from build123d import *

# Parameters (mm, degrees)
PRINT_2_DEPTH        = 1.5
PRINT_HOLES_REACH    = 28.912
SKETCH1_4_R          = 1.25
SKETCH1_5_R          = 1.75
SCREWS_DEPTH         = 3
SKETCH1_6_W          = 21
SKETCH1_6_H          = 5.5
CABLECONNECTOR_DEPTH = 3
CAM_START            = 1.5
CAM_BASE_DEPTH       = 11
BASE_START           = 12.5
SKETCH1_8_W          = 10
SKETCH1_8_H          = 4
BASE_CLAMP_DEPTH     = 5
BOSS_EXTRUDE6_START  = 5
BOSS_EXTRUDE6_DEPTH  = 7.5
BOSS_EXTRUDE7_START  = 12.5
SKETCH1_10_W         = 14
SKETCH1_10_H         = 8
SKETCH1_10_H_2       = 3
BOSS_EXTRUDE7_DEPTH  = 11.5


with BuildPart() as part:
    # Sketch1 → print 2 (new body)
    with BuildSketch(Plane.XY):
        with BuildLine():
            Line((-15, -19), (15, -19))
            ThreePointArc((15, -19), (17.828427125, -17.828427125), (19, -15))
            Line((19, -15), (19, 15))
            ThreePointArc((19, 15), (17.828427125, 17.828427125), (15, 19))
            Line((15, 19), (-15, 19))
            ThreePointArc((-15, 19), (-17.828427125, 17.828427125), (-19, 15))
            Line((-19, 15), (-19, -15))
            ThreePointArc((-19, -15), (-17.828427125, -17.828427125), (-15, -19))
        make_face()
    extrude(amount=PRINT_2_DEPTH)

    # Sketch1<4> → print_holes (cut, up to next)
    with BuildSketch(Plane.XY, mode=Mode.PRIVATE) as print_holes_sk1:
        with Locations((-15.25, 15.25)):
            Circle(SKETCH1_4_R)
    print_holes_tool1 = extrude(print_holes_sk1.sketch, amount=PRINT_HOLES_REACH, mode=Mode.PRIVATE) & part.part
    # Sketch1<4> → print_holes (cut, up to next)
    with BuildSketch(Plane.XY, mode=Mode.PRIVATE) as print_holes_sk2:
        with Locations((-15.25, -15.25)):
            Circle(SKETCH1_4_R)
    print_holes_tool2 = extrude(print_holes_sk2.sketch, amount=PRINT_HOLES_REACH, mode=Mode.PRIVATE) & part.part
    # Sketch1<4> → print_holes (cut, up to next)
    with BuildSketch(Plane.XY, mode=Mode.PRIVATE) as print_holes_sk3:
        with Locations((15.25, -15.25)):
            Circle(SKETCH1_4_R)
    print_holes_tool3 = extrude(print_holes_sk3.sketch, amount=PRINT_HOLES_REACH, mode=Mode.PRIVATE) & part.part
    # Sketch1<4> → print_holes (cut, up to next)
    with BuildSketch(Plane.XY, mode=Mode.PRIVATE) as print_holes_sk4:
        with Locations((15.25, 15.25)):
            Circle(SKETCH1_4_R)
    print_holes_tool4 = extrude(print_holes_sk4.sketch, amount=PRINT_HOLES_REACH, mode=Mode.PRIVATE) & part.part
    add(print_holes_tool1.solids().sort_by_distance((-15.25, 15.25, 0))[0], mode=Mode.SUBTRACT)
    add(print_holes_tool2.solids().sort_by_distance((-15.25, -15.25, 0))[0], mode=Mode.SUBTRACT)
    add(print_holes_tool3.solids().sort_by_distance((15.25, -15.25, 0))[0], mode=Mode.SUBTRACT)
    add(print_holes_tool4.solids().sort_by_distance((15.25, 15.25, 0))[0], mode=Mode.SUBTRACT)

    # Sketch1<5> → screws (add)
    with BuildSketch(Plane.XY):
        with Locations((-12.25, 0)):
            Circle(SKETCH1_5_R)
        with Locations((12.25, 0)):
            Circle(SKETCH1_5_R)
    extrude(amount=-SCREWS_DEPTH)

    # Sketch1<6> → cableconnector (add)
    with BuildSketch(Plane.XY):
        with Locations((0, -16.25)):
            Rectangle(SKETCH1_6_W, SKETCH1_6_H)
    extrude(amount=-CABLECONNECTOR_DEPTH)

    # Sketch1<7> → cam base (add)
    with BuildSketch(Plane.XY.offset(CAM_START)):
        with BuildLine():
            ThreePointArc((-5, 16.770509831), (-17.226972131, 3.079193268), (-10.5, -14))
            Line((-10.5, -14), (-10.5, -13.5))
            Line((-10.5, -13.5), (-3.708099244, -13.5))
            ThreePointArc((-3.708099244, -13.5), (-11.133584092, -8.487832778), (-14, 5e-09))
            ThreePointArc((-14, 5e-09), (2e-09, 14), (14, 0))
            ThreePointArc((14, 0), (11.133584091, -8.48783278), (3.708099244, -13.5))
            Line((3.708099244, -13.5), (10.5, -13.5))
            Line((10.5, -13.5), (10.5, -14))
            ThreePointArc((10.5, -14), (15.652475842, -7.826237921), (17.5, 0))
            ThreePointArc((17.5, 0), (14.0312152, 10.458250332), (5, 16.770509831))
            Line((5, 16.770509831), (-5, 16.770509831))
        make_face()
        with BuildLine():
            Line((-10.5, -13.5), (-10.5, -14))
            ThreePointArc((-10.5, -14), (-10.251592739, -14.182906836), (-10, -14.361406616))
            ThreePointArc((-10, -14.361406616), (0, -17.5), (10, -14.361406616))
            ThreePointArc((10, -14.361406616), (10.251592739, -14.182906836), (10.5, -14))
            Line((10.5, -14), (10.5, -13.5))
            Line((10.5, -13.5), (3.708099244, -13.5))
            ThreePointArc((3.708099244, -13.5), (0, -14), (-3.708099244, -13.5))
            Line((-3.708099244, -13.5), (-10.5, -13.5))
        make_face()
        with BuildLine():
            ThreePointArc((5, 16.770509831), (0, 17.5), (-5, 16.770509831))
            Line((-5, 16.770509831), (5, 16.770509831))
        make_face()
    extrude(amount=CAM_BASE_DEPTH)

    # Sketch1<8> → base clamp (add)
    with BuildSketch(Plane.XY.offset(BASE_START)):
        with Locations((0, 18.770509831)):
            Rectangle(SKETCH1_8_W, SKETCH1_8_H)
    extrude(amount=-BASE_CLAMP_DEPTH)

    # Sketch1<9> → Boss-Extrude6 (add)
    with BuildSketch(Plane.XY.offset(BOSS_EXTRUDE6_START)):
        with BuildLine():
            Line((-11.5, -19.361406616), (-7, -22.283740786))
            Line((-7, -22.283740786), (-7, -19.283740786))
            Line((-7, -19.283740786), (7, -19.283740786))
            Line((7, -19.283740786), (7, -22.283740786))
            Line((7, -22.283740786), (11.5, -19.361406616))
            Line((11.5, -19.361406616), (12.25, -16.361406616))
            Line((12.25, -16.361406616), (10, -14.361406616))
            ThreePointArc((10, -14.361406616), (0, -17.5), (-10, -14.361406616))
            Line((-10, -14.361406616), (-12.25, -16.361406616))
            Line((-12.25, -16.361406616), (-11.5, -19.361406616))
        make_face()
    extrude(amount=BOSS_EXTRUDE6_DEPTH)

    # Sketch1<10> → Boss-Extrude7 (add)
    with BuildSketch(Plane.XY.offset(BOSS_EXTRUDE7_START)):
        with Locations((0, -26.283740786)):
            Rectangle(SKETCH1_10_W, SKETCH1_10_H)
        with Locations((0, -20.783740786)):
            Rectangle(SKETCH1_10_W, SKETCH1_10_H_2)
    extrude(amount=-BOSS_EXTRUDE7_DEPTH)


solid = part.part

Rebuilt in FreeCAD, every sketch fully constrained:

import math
import FreeCAD as App
import Part
import Sketcher
from FreeCAD import Vector
Q = App.Units.Quantity

doc = App.newDocument("Part")
body = doc.addObject("PartDesign::Body", "Body")

sketch1 = body.newObject("Sketcher::SketchObject", "Sketch")
sketch1.AttachmentSupport = (doc.getObject("XY_Plane"), [""])
sketch1.MapMode = "FlatFace"
sketch1.addGeometry([
    Part.LineSegment(Vector(-15, -19, 0), Vector(15, -19, 0)),
    Part.ArcOfCircle(Part.Circle(Vector(15, -15, 0), Vector(0, 0, 1), 4), math.radians(-90), math.radians(0)),
    Part.LineSegment(Vector(19, -15, 0), Vector(19, 15, 0)),
    Part.ArcOfCircle(Part.Circle(Vector(15, 15, 0), Vector(0, 0, 1), 4), math.radians(0), math.radians(90)),
    Part.LineSegment(Vector(15, 19, 0), Vector(-15, 19, 0)),
    Part.ArcOfCircle(Part.Circle(Vector(-15, 15, 0), Vector(0, 0, 1), 4), math.radians(90), math.radians(180)),
    Part.LineSegment(Vector(-19, 15, 0), Vector(-19, -15, 0)),
    Part.ArcOfCircle(Part.Circle(Vector(-15, -15, 0), Vector(0, 0, 1), 4), math.radians(180), math.radians(270)),
], False)
sketch1.addConstraint([
    Sketcher.Constraint("Tangent", 0, 2, 1, 1),
    Sketcher.Constraint("Tangent", 1, 2, 2, 1),
    Sketcher.Constraint("Tangent", 2, 2, 3, 1),
    Sketcher.Constraint("Tangent", 3, 2, 4, 1),
    Sketcher.Constraint("Tangent", 4, 2, 5, 1),
    Sketcher.Constraint("Tangent", 5, 2, 6, 1),
    Sketcher.Constraint("Tangent", 6, 2, 7, 1),
    Sketcher.Constraint("Tangent", 7, 2, 0, 1),
    Sketcher.Constraint("Horizontal", 0),
    Sketcher.Constraint("Vertical", 2),
    Sketcher.Constraint("Horizontal", 4),
    Sketcher.Constraint("Vertical", 6),
    Sketcher.Constraint("Equal", 1, 3),
    Sketcher.Constraint("Equal", 3, 5),
    Sketcher.Constraint("Equal", 5, 7),
    Sketcher.Constraint("Symmetric", 1, 3, 5, 3, -1, 1),
    Sketcher.Constraint("Equal", 4, 2),
    Sketcher.Constraint("Radius", 1, Q("4 mm")),
    Sketcher.Constraint("DistanceX", 0, 1, 0, 2, Q("30 mm")),
])
pad1 = body.newObject("PartDesign::Pad", "Pad")
pad1.Profile = sketch1
pad1.Length = 1.5

sketch2 = body.newObject("Sketcher::SketchObject", "Sketch001")
sketch2.AttachmentSupport = (doc.getObject("XY_Plane"), [""])
sketch2.MapMode = "FlatFace"
sketch2.addGeometry(Part.Circle(Vector(-15.2, 15.2, 0), Vector(0, 0, 1), 1.2), False)
sketch2.addConstraint([
    Sketcher.Constraint("Diameter", 0, Q("2.5 mm")),
    Sketcher.Constraint("DistanceX", 0, 3, -1, 1, Q("15.25 mm")),
    Sketcher.Constraint("DistanceY", -1, 1, 0, 3, Q("15.25 mm")),
])
pocket1 = body.newObject("PartDesign::Pocket", "Pocket")
pocket1.Profile = sketch2
pocket1.Type = "UpToFirst"
pocket1.Reversed = True

sketch3 = body.newObject("Sketcher::SketchObject", "Sketch002")
sketch3.AttachmentSupport = (doc.getObject("XY_Plane"), [""])
sketch3.MapMode = "FlatFace"
sketch3.addGeometry(Part.Circle(Vector(-15.2, -15.2, 0), Vector(0, 0, 1), 1.2), False)
sketch3.addConstraint([
    Sketcher.Constraint("Diameter", 0, Q("2.5 mm")),
    Sketcher.Constraint("DistanceX", 0, 3, -1, 1, Q("15.25 mm")),
    Sketcher.Constraint("DistanceY", 0, 3, -1, 1, Q("15.25 mm")),
])
pocket2 = body.newObject("PartDesign::Pocket", "Pocket001")
pocket2.Profile = sketch3
pocket2.Type = "UpToFirst"
pocket2.Reversed = True

sketch4 = body.newObject("Sketcher::SketchObject", "Sketch003")
sketch4.AttachmentSupport = (doc.getObject("XY_Plane"), [""])
sketch4.MapMode = "FlatFace"
sketch4.addGeometry(Part.Circle(Vector(15.2, -15.2, 0), Vector(0, 0, 1), 1.2), False)
sketch4.addConstraint([
    Sketcher.Constraint("Diameter", 0, Q("2.5 mm")),
    Sketcher.Constraint("DistanceX", -1, 1, 0, 3, Q("15.25 mm")),
    Sketcher.Constraint("DistanceY", 0, 3, -1, 1, Q("15.25 mm")),
])
pocket3 = body.newObject("PartDesign::Pocket", "Pocket002")
pocket3.Profile = sketch4
pocket3.Type = "UpToFirst"
pocket3.Reversed = True

sketch5 = body.newObject("Sketcher::SketchObject", "Sketch004")
sketch5.AttachmentSupport = (doc.getObject("XY_Plane"), [""])
sketch5.MapMode = "FlatFace"
sketch5.addGeometry(Part.Circle(Vector(15.2, 15.2, 0), Vector(0, 0, 1), 1.2), False)
sketch5.addConstraint([
    Sketcher.Constraint("Diameter", 0, Q("2.5 mm")),
    Sketcher.Constraint("DistanceX", -1, 1, 0, 3, Q("15.25 mm")),
    Sketcher.Constraint("DistanceY", -1, 1, 0, 3, Q("15.25 mm")),
])
pocket4 = body.newObject("PartDesign::Pocket", "Pocket003")
pocket4.Profile = sketch5
pocket4.Type = "UpToFirst"
pocket4.Reversed = True

sketch6 = body.newObject("Sketcher::SketchObject", "Sketch005")
sketch6.AttachmentSupport = (doc.getObject("XY_Plane"), [""])
sketch6.MapMode = "FlatFace"
sketch6.addGeometry([
    Part.Circle(Vector(-12.2, 0, 0), Vector(0, 0, 1), 1.8),
    Part.Circle(Vector(12.2, 0, 0), Vector(0, 0, 1), 1.8),
], False)
sketch6.addConstraint([
    Sketcher.Constraint("Equal", 0, 1),
    Sketcher.Constraint("Symmetric", 0, 3, 1, 3, -1, 1),
    Sketcher.Constraint("PointOnObject", 0, 3, -1),
    Sketcher.Constraint("Diameter", 0, Q("3.5 mm")),
    Sketcher.Constraint("DistanceX", 0, 3, 1, 3, Q("24.5 mm")),
])
pad2 = body.newObject("PartDesign::Pad", "Pad001")
pad2.Profile = sketch6
pad2.Length = 3
pad2.Reversed = True

sketch7 = body.newObject("Sketcher::SketchObject", "Sketch006")
sketch7.AttachmentSupport = (doc.getObject("XY_Plane"), [""])
sketch7.MapMode = "FlatFace"
sketch7.addGeometry([
    Part.LineSegment(Vector(-10, -14, 0), Vector(-10, -19, 0)),
    Part.LineSegment(Vector(-10, -19, 0), Vector(10, -19, 0)),
    Part.LineSegment(Vector(10, -19, 0), Vector(10, -14, 0)),
    Part.LineSegment(Vector(10, -14, 0), Vector(-10, -14, 0)),
], False)
sketch7.addConstraint([
    Sketcher.Constraint("Coincident", 0, 2, 1, 1),
    Sketcher.Constraint("Coincident", 1, 2, 2, 1),
    Sketcher.Constraint("Coincident", 2, 2, 3, 1),
    Sketcher.Constraint("Coincident", 3, 2, 0, 1),
    Sketcher.Constraint("Vertical", 0),
    Sketcher.Constraint("Horizontal", 1),
    Sketcher.Constraint("Vertical", 2),
    Sketcher.Constraint("Horizontal", 3),
    Sketcher.Constraint("DistanceX", 1, 1, 1, 2, Q("21 mm")),
    Sketcher.Constraint("DistanceY", 0, 2, 0, 1, Q("5.5 mm")),
    Sketcher.Constraint("DistanceY", 0, 2, -1, 1, Q("19 mm")),
    Sketcher.Constraint("DistanceX", 0, 2, -1, 1, Q("10.5 mm")),
])
pad3 = body.newObject("PartDesign::Pad", "Pad002")
pad3.Profile = sketch7
pad3.Length = 3
pad3.Reversed = True

sketch8 = body.newObject("Sketcher::SketchObject", "Sketch007")
sketch8.AttachmentSupport = (doc.getObject("XY_Plane"), [""])
sketch8.MapMode = "FlatFace"
sketch8.AttachmentOffset = App.Placement(Vector(0, 0, 1.5), App.Rotation())
sketch8.addGeometry([
    Part.ArcOfCircle(Part.Circle(Vector(0, 0, 0), Vector(0, 0, 1), 17.5), math.radians(107), math.radians(233)),
    Part.ArcOfCircle(Part.Circle(Vector(0, 0, 0), Vector(0, 0, 1), 17.5), math.radians(-126.87), math.radians(-124.85)),
    Part.ArcOfCircle(Part.Circle(Vector(0, 0, 0), Vector(0, 0, 1), 17.5), math.radians(-125), math.radians(-55)),
    Part.ArcOfCircle(Part.Circle(Vector(0, 0, 0), Vector(0, 0, 1), 17.5), math.radians(-55.15), math.radians(-53.13)),
    Part.ArcOfCircle(Part.Circle(Vector(0, 0, 0), Vector(0, 0, 1), 17.5), math.radians(-53), math.radians(0)),
    Part.ArcOfCircle(Part.Circle(Vector(0, 0, 0), Vector(0, 0, 1), 17.5), math.radians(0), math.radians(73)),
    Part.ArcOfCircle(Part.Circle(Vector(0, 0, 0), Vector(0, 0, 1), 17.5), math.radians(73), math.radians(107)),
    Part.ArcOfCircle(Part.Circle(Vector(0, 0, 0), Vector(0, 0, 1), 14), math.radians(0), math.radians(255)),
    Part.ArcOfCircle(Part.Circle(Vector(0, 0, 0), Vector(0, 0, 1), 14), math.radians(-75), math.radians(0)),
    Part.ArcOfCircle(Part.Circle(Vector(0, 0, 0), Vector(0, 0, 1), 14), math.radians(-105), math.radians(-75)),
], False)
sketch8.addConstraint([
    Sketcher.Constraint("Tangent", 0, 2, 1, 1),
    Sketcher.Constraint("Tangent", 1, 2, 2, 1),
    Sketcher.Constraint("Tangent", 2, 2, 3, 1),
    Sketcher.Constraint("Tangent", 3, 2, 4, 1),
    Sketcher.Constraint("Tangent", 4, 2, 5, 1),
    Sketcher.Constraint("Tangent", 5, 2, 6, 1),
    Sketcher.Constraint("Tangent", 6, 2, 0, 1),
    Sketcher.Constraint("Tangent", 7, 1, 8, 2),
    Sketcher.Constraint("Tangent", 8, 1, 9, 2),
    Sketcher.Constraint("Tangent", 9, 1, 7, 2),
    Sketcher.Constraint("Coincident", 0, 3, -1, 1),
    Sketcher.Constraint("Coincident", 2, 3, -1, 1),
    Sketcher.Constraint("Coincident", 4, 3, -1, 1),
    Sketcher.Constraint("Coincident", 7, 3, -1, 1),
    Sketcher.Constraint("PointOnObject", 4, 2, -1),
    Sketcher.Constraint("PointOnObject", 7, 1, -1),
    Sketcher.Constraint("Horizontal", 1, 2, 2, 2),
    Sketcher.Constraint("Horizontal", 0, 2, 3, 2),
    Sketcher.Constraint("Horizontal", 5, 2, 6, 2),
    Sketcher.Constraint("Horizontal", 8, 1, 9, 1),
    Sketcher.Constraint("Radius", 7, Q("14 mm")),
    Sketcher.Constraint("Radius", 0, Q("17.5 mm")),
    Sketcher.Constraint("DistanceY", 0, 2, -1, 1, Q("14 mm")),
    Sketcher.Constraint("DistanceX", 1, 2, -1, 1, Q("10 mm")),
    Sketcher.Constraint("DistanceX", -1, 1, 5, 2, Q("5 mm")),
    Sketcher.Constraint("DistanceY", 8, 1, -1, 1, Q("13.5 mm")),
])
pad4 = body.newObject("PartDesign::Pad", "Pad003")
pad4.Profile = sketch8
pad4.Length = 11

sketch9 = body.newObject("Sketcher::SketchObject", "Sketch008")
sketch9.AttachmentSupport = (doc.getObject("XY_Plane"), [""])
sketch9.MapMode = "FlatFace"
sketch9.AttachmentOffset = App.Placement(Vector(0, 0, 12.5), App.Rotation())
sketch9.addGeometry([
    Part.LineSegment(Vector(-5, 20.8, 0), Vector(-5, 16.8, 0)),
    Part.LineSegment(Vector(-5, 16.8, 0), Vector(5, 16.8, 0)),
    Part.LineSegment(Vector(5, 16.8, 0), Vector(5, 20.8, 0)),
    Part.LineSegment(Vector(5, 20.8, 0), Vector(-5, 20.8, 0)),
], False)
sketch9.addConstraint([
    Sketcher.Constraint("Coincident", 0, 2, 1, 1),
    Sketcher.Constraint("Coincident", 1, 2, 2, 1),
    Sketcher.Constraint("Coincident", 2, 2, 3, 1),
    Sketcher.Constraint("Coincident", 3, 2, 0, 1),
    Sketcher.Constraint("Vertical", 0),
    Sketcher.Constraint("Horizontal", 1),
    Sketcher.Constraint("Vertical", 2),
    Sketcher.Constraint("Horizontal", 3),
    Sketcher.Constraint("DistanceX", 1, 1, 1, 2, Q("10 mm")),
    Sketcher.Constraint("DistanceY", 0, 2, 0, 1, Q("4 mm")),
    Sketcher.Constraint("DistanceX", 0, 2, -1, 1, Q("5 mm")),
    Sketcher.Constraint("DistanceY", -1, 1, 0, 2, Q("16.77051 mm")),
])
pad5 = body.newObject("PartDesign::Pad", "Pad004")
pad5.Profile = sketch9
pad5.Length = 5
pad5.Reversed = True

sketch10 = body.newObject("Sketcher::SketchObject", "Sketch009")
sketch10.AttachmentSupport = (doc.getObject("XY_Plane"), [""])
sketch10.MapMode = "FlatFace"
sketch10.AttachmentOffset = App.Placement(Vector(0, 0, 5), App.Rotation())
sketch10.addGeometry([
    Part.LineSegment(Vector(-11.5, -19.4, 0), Vector(-7, -22.3, 0)),
    Part.LineSegment(Vector(-7, -22.3, 0), Vector(-7, -19.3, 0)),
    Part.LineSegment(Vector(-7, -19.3, 0), Vector(7, -19.3, 0)),
    Part.LineSegment(Vector(7, -19.3, 0), Vector(7, -22.3, 0)),
    Part.LineSegment(Vector(7, -22.3, 0), Vector(11.5, -19.4, 0)),
    Part.LineSegment(Vector(11.5, -19.4, 0), Vector(12.2, -16.4, 0)),
    Part.LineSegment(Vector(12.2, -16.4, 0), Vector(10, -14.4, 0)),
    Part.ArcOfCircle(Part.Circle(Vector(0, 0, 0), Vector(0, 0, 1), 17.5), math.radians(-125), math.radians(-55)),
    Part.LineSegment(Vector(-10, -14.4, 0), Vector(-12.2, -16.4, 0)),
    Part.LineSegment(Vector(-12.2, -16.4, 0), Vector(-11.5, -19.4, 0)),
], False)
sketch10.addConstraint([
    Sketcher.Constraint("Coincident", 0, 2, 1, 1),
    Sketcher.Constraint("Coincident", 1, 2, 2, 1),
    Sketcher.Constraint("Coincident", 2, 2, 3, 1),
    Sketcher.Constraint("Coincident", 3, 2, 4, 1),
    Sketcher.Constraint("Coincident", 4, 2, 5, 1),
    Sketcher.Constraint("Coincident", 5, 2, 6, 1),
    Sketcher.Constraint("Coincident", 6, 2, 7, 2),
    Sketcher.Constraint("Coincident", 7, 1, 8, 1),
    Sketcher.Constraint("Coincident", 8, 2, 9, 1),
    Sketcher.Constraint("Coincident", 9, 2, 0, 1),
    Sketcher.Constraint("Vertical", 1),
    Sketcher.Constraint("Horizontal", 2),
    Sketcher.Constraint("Vertical", 3),
    Sketcher.Constraint("Coincident", 7, 3, -1, 1),
    Sketcher.Constraint("Symmetric", 0, 2, 3, 2, -2),
    Sketcher.Constraint("Symmetric", 5, 2, 8, 2, -2),
    Sketcher.Constraint("Symmetric", 4, 2, 9, 2, -2),
    Sketcher.Constraint("Horizontal", 6, 2, 7, 1),
    Sketcher.Constraint("Radius", 7, Q("17.5 mm")),
    Sketcher.Constraint("DistanceX", 2, 1, 2, 2, Q("14 mm")),
    Sketcher.Constraint("DistanceY", 1, 1, 1, 2, Q("3 mm")),
    Sketcher.Constraint("Angle", 0, Q("-33 deg")),
    Sketcher.Constraint("DistanceX", -1, 1, 6, 2, Q("10 mm")),
    Sketcher.Constraint("DistanceY", 4, 2, 5, 2, Q("3 mm")),
    Sketcher.Constraint("DistanceY", 5, 2, 6, 2, Q("2 mm")),
    Sketcher.Constraint("DistanceX", -1, 1, 4, 2, Q("11.5 mm")),
    Sketcher.Constraint("DistanceX", -1, 1, 5, 2, Q("12.25 mm")),
])
pad6 = body.newObject("PartDesign::Pad", "Pad005")
pad6.Profile = sketch10
pad6.Length = 7.5

sketch11 = body.newObject("Sketcher::SketchObject", "Sketch010")
sketch11.AttachmentSupport = (doc.getObject("XY_Plane"), [""])
sketch11.MapMode = "FlatFace"
sketch11.AttachmentOffset = App.Placement(Vector(0, 0, 12.5), App.Rotation())
sketch11.addGeometry([
    Part.LineSegment(Vector(-7, -30, 0), Vector(7, -30, 0)),
    Part.LineSegment(Vector(7, -30, 0), Vector(7, -19, 0)),
    Part.LineSegment(Vector(7, -19, 0), Vector(-7, -19, 0)),
    Part.LineSegment(Vector(-7, -19, 0), Vector(-7, -30, 0)),
], False)
sketch11.addConstraint([
    Sketcher.Constraint("Coincident", 0, 2, 1, 1),
    Sketcher.Constraint("Coincident", 1, 2, 2, 1),
    Sketcher.Constraint("Coincident", 2, 2, 3, 1),
    Sketcher.Constraint("Coincident", 3, 2, 0, 1),
    Sketcher.Constraint("Horizontal", 0),
    Sketcher.Constraint("Vertical", 1),
    Sketcher.Constraint("Horizontal", 2),
    Sketcher.Constraint("Vertical", 3),
    Sketcher.Constraint("DistanceX", 0, 1, 0, 2, Q("14 mm")),
    Sketcher.Constraint("DistanceY", 1, 1, 1, 2, Q("11 mm")),
    Sketcher.Constraint("DistanceX", -1, 1, 0, 2, Q("7 mm")),
    Sketcher.Constraint("DistanceY", 0, 2, -1, 1, Q("30.283741 mm")),
])
pad7 = body.newObject("PartDesign::Pad", "Pad006")
pad7.Profile = sketch11
pad7.Length = 11.5
pad7.Reversed = True

doc.recompute()
